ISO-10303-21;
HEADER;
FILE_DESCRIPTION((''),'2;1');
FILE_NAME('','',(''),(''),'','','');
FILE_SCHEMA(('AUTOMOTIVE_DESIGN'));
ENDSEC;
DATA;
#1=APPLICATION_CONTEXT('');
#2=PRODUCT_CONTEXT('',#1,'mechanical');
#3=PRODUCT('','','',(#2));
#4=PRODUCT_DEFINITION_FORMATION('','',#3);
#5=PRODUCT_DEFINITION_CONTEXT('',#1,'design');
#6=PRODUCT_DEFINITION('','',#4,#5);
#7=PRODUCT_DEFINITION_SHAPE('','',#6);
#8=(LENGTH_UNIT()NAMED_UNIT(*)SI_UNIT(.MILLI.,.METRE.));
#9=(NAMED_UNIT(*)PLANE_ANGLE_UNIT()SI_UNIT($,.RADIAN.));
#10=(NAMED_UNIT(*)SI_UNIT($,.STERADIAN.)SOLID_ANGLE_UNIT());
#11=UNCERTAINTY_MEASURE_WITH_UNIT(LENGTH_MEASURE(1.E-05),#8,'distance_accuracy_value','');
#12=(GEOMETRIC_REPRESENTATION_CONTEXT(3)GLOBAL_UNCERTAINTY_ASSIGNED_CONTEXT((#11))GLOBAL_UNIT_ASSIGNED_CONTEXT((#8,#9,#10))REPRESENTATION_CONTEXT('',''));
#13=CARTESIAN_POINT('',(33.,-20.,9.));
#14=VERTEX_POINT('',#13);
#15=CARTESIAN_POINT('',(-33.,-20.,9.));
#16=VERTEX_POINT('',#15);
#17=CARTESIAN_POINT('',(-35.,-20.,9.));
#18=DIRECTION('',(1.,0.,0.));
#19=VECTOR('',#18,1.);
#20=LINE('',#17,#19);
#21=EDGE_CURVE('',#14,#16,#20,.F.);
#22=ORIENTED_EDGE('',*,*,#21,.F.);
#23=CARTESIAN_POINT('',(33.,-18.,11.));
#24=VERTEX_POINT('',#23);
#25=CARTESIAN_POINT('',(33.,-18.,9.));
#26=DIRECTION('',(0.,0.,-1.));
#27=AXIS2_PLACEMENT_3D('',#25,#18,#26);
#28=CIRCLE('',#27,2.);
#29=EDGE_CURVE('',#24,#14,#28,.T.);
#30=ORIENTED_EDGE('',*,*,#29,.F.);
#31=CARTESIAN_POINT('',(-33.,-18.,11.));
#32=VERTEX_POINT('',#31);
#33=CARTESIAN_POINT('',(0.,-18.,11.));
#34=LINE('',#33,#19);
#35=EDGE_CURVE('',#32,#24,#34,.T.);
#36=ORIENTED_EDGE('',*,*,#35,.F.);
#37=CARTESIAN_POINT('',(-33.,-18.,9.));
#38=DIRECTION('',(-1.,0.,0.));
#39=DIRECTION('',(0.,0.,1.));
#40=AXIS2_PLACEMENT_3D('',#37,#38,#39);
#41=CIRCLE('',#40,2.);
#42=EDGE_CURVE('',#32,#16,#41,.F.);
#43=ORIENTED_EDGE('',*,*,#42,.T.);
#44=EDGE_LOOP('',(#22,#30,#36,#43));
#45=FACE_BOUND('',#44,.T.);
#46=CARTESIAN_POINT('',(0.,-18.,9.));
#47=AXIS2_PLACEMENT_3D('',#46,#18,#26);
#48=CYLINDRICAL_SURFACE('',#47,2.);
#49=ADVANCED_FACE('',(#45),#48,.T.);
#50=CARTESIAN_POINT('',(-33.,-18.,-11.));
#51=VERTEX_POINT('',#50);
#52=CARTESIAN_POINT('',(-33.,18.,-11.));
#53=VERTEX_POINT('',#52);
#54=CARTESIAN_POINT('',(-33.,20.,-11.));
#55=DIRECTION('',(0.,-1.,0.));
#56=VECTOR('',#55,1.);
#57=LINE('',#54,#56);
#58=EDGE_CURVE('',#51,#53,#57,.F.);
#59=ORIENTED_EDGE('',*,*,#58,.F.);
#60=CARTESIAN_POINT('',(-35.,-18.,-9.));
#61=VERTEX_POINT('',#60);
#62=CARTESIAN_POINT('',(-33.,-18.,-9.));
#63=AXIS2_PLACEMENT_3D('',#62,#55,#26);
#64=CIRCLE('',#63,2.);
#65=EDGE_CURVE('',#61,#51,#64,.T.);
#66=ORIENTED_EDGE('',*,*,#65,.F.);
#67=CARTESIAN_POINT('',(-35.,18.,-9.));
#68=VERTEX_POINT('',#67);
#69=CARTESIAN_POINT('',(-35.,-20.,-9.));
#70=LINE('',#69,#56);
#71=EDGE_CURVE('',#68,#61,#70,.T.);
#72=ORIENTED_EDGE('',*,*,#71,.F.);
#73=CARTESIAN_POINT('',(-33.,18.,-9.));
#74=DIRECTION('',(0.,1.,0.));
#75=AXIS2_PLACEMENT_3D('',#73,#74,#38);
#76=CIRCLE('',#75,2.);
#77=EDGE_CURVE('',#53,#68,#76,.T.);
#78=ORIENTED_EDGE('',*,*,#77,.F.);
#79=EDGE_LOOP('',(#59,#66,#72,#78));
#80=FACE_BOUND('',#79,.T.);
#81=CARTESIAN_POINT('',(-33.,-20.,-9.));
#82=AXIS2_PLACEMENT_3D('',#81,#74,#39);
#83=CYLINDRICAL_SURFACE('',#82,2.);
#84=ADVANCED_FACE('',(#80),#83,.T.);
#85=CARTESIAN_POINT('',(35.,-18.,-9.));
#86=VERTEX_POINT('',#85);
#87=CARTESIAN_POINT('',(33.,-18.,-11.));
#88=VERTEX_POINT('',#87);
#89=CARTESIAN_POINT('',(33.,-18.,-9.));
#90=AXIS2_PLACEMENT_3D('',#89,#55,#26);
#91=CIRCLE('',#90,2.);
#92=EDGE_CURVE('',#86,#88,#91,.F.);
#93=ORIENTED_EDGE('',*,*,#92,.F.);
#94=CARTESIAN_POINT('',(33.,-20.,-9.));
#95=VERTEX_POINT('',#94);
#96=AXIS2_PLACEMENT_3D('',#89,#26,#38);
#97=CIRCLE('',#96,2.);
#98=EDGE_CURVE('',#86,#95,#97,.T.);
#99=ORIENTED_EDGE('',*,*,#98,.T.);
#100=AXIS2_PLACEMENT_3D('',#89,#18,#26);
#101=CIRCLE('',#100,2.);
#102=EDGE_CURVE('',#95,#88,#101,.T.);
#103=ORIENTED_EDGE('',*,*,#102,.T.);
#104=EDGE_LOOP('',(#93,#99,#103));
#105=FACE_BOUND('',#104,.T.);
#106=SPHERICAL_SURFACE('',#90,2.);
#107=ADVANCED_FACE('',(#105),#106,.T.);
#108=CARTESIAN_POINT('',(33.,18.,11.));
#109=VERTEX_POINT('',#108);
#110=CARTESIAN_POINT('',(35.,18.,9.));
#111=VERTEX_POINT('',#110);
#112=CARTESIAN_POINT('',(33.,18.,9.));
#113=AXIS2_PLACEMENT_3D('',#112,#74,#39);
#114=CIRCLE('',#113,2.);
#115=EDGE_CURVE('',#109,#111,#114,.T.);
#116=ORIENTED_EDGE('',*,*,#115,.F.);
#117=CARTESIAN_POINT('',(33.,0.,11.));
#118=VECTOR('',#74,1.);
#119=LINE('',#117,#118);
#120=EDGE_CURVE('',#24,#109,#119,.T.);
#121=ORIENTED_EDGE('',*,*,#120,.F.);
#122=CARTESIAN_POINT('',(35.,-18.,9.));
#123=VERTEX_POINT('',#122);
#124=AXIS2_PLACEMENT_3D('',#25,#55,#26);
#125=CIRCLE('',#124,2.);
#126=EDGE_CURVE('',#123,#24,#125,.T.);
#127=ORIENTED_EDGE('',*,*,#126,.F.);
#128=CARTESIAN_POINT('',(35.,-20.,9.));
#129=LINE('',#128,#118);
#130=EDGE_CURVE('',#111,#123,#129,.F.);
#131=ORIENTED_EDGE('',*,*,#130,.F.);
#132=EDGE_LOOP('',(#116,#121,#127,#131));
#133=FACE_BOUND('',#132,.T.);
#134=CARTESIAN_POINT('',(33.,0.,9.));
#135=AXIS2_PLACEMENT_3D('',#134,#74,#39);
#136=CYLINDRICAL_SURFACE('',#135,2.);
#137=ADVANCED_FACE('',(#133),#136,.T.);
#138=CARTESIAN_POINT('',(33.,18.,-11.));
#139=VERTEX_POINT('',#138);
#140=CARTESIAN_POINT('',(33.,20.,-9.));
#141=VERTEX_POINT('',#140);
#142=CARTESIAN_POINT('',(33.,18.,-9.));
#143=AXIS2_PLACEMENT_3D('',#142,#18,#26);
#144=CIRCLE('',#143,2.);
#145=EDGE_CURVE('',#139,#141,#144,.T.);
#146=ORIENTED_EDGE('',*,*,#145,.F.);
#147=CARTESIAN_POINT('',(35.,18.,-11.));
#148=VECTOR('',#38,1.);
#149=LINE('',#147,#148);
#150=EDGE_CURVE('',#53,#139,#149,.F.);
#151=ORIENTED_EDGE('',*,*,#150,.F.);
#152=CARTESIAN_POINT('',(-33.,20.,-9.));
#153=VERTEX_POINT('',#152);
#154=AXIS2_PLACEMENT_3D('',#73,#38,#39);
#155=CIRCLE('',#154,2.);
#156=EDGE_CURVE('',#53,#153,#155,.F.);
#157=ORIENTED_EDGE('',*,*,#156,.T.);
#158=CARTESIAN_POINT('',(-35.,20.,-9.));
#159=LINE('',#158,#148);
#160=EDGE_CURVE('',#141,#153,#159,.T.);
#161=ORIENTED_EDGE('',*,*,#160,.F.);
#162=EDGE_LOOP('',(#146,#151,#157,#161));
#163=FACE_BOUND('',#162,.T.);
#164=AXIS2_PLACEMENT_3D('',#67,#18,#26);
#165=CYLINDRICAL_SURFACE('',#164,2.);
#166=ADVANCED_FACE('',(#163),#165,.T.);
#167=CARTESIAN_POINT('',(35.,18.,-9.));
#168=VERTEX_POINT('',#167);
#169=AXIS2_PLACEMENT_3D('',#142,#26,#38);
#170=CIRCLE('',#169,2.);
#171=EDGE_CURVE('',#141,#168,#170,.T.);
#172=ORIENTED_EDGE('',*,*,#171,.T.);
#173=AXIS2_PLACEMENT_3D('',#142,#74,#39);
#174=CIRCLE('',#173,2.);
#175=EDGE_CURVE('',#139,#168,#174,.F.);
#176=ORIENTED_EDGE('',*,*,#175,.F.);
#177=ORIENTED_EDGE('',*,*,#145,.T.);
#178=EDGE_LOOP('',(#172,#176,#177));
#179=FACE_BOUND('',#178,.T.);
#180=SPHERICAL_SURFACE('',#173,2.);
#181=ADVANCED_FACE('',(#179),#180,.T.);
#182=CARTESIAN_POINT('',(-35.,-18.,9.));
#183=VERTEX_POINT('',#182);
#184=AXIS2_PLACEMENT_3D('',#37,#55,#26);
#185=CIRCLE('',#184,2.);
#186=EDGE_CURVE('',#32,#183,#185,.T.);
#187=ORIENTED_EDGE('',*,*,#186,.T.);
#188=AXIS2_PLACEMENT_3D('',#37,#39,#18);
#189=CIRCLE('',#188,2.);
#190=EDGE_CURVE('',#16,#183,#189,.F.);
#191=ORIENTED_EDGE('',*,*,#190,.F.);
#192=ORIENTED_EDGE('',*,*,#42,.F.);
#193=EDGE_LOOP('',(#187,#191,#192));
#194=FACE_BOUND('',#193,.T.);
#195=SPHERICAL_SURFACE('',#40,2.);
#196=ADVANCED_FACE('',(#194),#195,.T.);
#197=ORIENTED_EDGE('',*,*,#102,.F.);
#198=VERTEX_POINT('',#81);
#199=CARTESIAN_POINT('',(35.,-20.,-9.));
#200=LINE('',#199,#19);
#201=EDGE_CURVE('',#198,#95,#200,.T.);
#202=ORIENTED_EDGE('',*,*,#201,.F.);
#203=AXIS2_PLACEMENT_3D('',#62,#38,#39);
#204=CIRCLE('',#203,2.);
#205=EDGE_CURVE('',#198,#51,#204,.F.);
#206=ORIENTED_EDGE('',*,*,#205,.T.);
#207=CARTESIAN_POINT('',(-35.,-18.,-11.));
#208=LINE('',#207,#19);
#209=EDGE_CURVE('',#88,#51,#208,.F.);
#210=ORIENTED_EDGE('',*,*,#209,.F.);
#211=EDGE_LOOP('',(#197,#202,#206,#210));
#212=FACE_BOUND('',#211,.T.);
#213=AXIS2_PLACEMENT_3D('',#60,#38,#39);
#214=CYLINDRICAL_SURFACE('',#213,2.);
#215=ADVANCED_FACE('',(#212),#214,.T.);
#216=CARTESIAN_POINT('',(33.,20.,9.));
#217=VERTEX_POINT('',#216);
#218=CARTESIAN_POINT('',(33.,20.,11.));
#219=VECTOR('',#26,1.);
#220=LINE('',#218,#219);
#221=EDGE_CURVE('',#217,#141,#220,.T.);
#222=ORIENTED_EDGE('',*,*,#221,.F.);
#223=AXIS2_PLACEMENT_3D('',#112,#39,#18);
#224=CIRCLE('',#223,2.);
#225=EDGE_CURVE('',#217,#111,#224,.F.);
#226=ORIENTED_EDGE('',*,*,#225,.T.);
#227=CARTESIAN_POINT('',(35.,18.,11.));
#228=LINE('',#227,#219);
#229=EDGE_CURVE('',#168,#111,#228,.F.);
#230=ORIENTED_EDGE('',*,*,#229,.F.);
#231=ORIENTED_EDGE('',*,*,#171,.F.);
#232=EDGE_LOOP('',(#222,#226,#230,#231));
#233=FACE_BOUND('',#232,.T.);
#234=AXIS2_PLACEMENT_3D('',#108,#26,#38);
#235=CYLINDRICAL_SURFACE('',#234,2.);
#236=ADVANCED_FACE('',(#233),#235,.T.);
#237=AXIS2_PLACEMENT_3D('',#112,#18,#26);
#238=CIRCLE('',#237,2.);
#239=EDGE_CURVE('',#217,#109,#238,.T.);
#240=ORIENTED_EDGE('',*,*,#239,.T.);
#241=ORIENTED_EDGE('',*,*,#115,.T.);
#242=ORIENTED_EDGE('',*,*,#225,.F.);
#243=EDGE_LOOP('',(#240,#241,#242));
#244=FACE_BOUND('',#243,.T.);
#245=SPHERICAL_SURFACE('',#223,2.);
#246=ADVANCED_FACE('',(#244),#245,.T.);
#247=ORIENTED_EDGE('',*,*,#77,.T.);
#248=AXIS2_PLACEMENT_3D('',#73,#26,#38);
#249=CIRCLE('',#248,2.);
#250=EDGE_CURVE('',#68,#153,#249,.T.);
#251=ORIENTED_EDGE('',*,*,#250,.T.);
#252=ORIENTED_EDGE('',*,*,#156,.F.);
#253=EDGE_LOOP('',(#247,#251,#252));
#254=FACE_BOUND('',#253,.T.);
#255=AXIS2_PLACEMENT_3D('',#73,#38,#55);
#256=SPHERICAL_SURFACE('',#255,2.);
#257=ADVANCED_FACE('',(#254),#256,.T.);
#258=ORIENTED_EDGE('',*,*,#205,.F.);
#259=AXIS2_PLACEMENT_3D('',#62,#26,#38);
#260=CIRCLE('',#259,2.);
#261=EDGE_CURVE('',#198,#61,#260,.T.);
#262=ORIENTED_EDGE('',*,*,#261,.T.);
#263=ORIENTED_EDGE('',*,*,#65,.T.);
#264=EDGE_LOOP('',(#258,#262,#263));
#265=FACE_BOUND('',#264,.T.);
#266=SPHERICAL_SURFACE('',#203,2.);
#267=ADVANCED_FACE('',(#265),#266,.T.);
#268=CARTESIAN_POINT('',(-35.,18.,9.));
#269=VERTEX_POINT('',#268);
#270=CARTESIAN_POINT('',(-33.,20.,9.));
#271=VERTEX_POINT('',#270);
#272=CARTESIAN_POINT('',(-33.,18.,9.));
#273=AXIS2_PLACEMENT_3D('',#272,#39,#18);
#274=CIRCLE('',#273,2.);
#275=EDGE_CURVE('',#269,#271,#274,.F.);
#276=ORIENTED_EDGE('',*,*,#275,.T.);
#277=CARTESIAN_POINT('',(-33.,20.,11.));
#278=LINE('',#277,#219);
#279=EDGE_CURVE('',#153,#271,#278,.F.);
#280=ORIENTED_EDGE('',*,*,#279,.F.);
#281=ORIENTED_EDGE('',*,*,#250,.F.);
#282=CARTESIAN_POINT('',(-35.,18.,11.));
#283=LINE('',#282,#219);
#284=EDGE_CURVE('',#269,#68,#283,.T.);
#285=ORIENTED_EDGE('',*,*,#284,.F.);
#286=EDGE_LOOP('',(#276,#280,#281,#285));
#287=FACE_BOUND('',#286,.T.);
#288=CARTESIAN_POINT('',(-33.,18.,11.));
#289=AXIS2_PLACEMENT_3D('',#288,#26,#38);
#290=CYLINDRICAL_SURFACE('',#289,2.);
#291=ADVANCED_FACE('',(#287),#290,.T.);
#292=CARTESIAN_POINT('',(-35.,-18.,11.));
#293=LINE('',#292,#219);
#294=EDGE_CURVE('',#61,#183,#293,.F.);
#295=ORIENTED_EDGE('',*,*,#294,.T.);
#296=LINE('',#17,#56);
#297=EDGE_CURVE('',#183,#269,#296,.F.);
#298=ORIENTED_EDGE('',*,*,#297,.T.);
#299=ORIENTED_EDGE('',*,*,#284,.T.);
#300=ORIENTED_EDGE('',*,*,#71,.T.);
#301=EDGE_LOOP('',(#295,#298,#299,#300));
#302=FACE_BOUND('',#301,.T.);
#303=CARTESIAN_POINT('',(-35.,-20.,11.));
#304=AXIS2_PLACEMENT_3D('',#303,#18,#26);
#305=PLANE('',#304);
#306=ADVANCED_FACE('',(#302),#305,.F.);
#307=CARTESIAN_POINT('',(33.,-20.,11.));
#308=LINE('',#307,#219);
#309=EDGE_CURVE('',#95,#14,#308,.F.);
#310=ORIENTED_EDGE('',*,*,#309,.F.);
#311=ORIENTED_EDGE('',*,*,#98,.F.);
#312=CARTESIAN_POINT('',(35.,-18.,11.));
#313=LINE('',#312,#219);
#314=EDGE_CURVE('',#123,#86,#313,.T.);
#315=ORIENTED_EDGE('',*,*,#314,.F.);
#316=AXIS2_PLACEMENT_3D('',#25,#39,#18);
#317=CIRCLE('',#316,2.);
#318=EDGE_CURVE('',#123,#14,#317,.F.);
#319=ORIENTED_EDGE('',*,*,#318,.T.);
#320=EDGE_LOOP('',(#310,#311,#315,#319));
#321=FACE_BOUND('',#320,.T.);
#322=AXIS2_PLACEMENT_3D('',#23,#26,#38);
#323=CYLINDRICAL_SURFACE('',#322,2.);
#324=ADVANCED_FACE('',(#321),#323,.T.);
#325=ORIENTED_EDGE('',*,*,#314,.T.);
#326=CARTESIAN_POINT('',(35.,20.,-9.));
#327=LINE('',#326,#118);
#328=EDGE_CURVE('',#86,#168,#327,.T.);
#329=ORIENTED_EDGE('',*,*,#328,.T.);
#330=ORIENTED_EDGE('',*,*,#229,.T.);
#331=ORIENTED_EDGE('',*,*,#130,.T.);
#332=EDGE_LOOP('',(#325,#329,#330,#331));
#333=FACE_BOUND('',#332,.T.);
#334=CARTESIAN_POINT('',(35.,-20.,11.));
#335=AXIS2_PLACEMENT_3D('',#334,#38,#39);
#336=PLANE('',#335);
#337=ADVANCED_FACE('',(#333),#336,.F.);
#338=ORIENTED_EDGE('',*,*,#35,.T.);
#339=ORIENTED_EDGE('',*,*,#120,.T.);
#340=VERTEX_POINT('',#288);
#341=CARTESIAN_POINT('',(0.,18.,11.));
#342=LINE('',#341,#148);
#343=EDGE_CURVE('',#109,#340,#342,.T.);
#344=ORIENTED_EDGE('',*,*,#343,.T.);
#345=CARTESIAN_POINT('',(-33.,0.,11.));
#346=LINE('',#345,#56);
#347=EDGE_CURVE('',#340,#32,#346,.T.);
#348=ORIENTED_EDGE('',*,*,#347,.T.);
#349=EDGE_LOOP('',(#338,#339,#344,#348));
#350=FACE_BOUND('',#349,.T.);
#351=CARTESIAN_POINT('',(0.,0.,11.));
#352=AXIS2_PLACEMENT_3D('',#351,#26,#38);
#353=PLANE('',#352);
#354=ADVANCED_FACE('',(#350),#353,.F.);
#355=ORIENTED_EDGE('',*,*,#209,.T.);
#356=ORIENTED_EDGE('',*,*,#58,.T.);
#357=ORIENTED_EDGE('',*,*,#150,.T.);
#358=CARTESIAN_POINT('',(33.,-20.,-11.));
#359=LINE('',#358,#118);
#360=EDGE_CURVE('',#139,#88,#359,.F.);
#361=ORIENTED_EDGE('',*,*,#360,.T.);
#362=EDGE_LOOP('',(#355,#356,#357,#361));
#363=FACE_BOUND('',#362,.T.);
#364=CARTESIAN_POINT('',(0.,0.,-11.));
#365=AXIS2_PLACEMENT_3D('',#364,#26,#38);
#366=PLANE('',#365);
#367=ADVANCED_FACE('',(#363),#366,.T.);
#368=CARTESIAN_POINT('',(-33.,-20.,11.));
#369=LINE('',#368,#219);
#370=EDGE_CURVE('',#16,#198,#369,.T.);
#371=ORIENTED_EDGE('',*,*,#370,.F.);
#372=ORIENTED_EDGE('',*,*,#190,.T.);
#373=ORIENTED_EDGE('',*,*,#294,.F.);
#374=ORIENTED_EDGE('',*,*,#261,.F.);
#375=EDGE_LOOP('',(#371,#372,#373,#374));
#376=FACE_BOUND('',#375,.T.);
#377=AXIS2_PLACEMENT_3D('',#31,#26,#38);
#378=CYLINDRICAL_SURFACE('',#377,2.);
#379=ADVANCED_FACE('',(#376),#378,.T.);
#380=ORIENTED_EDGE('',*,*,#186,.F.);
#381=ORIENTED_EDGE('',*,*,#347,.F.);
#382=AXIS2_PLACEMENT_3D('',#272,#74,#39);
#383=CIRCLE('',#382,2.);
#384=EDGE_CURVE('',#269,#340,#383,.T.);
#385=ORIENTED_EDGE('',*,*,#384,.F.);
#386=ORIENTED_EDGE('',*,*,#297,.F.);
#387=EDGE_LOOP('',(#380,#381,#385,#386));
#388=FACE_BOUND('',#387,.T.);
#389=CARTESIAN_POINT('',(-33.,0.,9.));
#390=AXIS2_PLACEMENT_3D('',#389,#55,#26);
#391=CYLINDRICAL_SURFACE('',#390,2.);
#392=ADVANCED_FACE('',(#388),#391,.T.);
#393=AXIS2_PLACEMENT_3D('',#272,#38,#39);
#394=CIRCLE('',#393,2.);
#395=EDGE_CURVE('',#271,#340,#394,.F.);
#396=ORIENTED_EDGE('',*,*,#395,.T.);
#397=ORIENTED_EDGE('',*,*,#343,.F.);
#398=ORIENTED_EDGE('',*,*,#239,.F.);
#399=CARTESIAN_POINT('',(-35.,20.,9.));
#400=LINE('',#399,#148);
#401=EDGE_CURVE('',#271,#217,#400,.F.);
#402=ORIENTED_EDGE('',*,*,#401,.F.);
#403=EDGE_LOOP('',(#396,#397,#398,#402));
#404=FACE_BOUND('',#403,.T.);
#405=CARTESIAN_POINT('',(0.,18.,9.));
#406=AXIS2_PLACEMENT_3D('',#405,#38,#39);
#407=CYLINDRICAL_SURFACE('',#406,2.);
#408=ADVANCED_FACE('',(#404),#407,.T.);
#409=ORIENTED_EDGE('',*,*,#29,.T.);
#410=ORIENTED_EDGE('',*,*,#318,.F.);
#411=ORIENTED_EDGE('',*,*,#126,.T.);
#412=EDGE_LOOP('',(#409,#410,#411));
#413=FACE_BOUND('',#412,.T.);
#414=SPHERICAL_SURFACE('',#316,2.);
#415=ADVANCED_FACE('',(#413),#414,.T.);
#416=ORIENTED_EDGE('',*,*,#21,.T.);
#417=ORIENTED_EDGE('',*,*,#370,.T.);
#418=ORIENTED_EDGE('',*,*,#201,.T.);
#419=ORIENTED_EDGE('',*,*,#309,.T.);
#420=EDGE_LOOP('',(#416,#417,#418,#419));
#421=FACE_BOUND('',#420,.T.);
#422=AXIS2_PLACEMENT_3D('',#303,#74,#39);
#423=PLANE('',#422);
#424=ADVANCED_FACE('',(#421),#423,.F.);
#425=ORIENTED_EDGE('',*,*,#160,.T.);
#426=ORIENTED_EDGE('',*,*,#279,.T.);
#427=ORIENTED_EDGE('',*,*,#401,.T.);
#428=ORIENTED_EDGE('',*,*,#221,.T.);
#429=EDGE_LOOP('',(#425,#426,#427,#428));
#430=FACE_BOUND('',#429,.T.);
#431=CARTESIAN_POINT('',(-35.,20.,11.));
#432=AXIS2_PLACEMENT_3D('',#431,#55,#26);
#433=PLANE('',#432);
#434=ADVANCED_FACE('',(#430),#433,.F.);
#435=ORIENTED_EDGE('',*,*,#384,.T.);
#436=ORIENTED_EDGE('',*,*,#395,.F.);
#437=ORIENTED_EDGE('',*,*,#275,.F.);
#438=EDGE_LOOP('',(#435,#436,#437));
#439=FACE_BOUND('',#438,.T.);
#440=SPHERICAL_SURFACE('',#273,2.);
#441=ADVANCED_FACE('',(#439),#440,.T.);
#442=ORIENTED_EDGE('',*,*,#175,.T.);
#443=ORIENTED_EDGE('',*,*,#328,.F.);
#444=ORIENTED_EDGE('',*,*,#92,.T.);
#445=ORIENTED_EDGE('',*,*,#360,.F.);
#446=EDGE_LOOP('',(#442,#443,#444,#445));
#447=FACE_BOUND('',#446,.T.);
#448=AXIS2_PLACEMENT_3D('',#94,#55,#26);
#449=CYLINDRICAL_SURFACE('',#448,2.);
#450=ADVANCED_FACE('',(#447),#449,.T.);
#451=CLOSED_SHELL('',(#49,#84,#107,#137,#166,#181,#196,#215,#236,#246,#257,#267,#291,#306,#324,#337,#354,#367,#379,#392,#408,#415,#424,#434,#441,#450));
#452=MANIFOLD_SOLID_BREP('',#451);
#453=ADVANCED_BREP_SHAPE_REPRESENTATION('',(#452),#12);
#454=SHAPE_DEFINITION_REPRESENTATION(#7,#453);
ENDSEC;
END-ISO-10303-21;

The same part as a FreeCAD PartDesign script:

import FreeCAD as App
import Part
import Sketcher
from FreeCAD import Vector

doc = App.newDocument("Part")
body = doc.addObject("PartDesign::Body", "Body")

# Sketch on XY plane
sketch1 = doc.addObject("Sketcher::SketchObject", "Sketch")
body.addObject(sketch1)
sketch1.AttachmentSupport = (doc.XY_Plane, [""])
sketch1.MapMode = "FlatFace"
sketch1.addGeometry(Part.LineSegment(Vector(-35, 20, 0), Vector(-35, -20, 0)), False)
sketch1.addGeometry(Part.LineSegment(Vector(-35, -20, 0), Vector(35, -20, 0)), False)
sketch1.addGeometry(Part.LineSegment(Vector(35, -20, 0), Vector(35, 20, 0)), False)
sketch1.addGeometry(Part.LineSegment(Vector(35, 20, 0), Vector(-35, 20, 0)), False)
sketch1.addConstraint(Sketcher.Constraint("Coincident", 0, 2, 1, 1))
sketch1.addConstraint(Sketcher.Constraint("Coincident", 1, 2, 2, 1))
sketch1.addConstraint(Sketcher.Constraint("Coincident", 2, 2, 3, 1))
sketch1.addConstraint(Sketcher.Constraint("Coincident", 3, 2, 0, 1))
sketch1.addConstraint(Sketcher.Constraint("Vertical", 0))
sketch1.addConstraint(Sketcher.Constraint("Horizontal", 1))
sketch1.addConstraint(Sketcher.Constraint("Vertical", 2))
sketch1.addConstraint(Sketcher.Constraint("Horizontal", 3))
sketch1.addConstraint(Sketcher.Constraint("Symmetric", 0, 2, 2, 2, -1, 1))
sketch1.addConstraint(Sketcher.Constraint("DistanceX", 1, 1, 1, 2, 70.0))
sketch1.addConstraint(Sketcher.Constraint("DistanceY", 0, 2, 0, 1, 40.0))
pad1 = doc.addObject("PartDesign::Pad", "Pad")
body.addObject(pad1)
pad1.Profile = sketch1
pad1.Length = 22
pad1.Midplane = True
doc.recompute()

fillet = doc.addObject("PartDesign::Fillet", "Fillet")
body.addObject(fillet)
fillet.Base = (pad1, ["Edge1"])
fillet.UseAllEdges = True
fillet.Radius = 2

doc.recompute()
